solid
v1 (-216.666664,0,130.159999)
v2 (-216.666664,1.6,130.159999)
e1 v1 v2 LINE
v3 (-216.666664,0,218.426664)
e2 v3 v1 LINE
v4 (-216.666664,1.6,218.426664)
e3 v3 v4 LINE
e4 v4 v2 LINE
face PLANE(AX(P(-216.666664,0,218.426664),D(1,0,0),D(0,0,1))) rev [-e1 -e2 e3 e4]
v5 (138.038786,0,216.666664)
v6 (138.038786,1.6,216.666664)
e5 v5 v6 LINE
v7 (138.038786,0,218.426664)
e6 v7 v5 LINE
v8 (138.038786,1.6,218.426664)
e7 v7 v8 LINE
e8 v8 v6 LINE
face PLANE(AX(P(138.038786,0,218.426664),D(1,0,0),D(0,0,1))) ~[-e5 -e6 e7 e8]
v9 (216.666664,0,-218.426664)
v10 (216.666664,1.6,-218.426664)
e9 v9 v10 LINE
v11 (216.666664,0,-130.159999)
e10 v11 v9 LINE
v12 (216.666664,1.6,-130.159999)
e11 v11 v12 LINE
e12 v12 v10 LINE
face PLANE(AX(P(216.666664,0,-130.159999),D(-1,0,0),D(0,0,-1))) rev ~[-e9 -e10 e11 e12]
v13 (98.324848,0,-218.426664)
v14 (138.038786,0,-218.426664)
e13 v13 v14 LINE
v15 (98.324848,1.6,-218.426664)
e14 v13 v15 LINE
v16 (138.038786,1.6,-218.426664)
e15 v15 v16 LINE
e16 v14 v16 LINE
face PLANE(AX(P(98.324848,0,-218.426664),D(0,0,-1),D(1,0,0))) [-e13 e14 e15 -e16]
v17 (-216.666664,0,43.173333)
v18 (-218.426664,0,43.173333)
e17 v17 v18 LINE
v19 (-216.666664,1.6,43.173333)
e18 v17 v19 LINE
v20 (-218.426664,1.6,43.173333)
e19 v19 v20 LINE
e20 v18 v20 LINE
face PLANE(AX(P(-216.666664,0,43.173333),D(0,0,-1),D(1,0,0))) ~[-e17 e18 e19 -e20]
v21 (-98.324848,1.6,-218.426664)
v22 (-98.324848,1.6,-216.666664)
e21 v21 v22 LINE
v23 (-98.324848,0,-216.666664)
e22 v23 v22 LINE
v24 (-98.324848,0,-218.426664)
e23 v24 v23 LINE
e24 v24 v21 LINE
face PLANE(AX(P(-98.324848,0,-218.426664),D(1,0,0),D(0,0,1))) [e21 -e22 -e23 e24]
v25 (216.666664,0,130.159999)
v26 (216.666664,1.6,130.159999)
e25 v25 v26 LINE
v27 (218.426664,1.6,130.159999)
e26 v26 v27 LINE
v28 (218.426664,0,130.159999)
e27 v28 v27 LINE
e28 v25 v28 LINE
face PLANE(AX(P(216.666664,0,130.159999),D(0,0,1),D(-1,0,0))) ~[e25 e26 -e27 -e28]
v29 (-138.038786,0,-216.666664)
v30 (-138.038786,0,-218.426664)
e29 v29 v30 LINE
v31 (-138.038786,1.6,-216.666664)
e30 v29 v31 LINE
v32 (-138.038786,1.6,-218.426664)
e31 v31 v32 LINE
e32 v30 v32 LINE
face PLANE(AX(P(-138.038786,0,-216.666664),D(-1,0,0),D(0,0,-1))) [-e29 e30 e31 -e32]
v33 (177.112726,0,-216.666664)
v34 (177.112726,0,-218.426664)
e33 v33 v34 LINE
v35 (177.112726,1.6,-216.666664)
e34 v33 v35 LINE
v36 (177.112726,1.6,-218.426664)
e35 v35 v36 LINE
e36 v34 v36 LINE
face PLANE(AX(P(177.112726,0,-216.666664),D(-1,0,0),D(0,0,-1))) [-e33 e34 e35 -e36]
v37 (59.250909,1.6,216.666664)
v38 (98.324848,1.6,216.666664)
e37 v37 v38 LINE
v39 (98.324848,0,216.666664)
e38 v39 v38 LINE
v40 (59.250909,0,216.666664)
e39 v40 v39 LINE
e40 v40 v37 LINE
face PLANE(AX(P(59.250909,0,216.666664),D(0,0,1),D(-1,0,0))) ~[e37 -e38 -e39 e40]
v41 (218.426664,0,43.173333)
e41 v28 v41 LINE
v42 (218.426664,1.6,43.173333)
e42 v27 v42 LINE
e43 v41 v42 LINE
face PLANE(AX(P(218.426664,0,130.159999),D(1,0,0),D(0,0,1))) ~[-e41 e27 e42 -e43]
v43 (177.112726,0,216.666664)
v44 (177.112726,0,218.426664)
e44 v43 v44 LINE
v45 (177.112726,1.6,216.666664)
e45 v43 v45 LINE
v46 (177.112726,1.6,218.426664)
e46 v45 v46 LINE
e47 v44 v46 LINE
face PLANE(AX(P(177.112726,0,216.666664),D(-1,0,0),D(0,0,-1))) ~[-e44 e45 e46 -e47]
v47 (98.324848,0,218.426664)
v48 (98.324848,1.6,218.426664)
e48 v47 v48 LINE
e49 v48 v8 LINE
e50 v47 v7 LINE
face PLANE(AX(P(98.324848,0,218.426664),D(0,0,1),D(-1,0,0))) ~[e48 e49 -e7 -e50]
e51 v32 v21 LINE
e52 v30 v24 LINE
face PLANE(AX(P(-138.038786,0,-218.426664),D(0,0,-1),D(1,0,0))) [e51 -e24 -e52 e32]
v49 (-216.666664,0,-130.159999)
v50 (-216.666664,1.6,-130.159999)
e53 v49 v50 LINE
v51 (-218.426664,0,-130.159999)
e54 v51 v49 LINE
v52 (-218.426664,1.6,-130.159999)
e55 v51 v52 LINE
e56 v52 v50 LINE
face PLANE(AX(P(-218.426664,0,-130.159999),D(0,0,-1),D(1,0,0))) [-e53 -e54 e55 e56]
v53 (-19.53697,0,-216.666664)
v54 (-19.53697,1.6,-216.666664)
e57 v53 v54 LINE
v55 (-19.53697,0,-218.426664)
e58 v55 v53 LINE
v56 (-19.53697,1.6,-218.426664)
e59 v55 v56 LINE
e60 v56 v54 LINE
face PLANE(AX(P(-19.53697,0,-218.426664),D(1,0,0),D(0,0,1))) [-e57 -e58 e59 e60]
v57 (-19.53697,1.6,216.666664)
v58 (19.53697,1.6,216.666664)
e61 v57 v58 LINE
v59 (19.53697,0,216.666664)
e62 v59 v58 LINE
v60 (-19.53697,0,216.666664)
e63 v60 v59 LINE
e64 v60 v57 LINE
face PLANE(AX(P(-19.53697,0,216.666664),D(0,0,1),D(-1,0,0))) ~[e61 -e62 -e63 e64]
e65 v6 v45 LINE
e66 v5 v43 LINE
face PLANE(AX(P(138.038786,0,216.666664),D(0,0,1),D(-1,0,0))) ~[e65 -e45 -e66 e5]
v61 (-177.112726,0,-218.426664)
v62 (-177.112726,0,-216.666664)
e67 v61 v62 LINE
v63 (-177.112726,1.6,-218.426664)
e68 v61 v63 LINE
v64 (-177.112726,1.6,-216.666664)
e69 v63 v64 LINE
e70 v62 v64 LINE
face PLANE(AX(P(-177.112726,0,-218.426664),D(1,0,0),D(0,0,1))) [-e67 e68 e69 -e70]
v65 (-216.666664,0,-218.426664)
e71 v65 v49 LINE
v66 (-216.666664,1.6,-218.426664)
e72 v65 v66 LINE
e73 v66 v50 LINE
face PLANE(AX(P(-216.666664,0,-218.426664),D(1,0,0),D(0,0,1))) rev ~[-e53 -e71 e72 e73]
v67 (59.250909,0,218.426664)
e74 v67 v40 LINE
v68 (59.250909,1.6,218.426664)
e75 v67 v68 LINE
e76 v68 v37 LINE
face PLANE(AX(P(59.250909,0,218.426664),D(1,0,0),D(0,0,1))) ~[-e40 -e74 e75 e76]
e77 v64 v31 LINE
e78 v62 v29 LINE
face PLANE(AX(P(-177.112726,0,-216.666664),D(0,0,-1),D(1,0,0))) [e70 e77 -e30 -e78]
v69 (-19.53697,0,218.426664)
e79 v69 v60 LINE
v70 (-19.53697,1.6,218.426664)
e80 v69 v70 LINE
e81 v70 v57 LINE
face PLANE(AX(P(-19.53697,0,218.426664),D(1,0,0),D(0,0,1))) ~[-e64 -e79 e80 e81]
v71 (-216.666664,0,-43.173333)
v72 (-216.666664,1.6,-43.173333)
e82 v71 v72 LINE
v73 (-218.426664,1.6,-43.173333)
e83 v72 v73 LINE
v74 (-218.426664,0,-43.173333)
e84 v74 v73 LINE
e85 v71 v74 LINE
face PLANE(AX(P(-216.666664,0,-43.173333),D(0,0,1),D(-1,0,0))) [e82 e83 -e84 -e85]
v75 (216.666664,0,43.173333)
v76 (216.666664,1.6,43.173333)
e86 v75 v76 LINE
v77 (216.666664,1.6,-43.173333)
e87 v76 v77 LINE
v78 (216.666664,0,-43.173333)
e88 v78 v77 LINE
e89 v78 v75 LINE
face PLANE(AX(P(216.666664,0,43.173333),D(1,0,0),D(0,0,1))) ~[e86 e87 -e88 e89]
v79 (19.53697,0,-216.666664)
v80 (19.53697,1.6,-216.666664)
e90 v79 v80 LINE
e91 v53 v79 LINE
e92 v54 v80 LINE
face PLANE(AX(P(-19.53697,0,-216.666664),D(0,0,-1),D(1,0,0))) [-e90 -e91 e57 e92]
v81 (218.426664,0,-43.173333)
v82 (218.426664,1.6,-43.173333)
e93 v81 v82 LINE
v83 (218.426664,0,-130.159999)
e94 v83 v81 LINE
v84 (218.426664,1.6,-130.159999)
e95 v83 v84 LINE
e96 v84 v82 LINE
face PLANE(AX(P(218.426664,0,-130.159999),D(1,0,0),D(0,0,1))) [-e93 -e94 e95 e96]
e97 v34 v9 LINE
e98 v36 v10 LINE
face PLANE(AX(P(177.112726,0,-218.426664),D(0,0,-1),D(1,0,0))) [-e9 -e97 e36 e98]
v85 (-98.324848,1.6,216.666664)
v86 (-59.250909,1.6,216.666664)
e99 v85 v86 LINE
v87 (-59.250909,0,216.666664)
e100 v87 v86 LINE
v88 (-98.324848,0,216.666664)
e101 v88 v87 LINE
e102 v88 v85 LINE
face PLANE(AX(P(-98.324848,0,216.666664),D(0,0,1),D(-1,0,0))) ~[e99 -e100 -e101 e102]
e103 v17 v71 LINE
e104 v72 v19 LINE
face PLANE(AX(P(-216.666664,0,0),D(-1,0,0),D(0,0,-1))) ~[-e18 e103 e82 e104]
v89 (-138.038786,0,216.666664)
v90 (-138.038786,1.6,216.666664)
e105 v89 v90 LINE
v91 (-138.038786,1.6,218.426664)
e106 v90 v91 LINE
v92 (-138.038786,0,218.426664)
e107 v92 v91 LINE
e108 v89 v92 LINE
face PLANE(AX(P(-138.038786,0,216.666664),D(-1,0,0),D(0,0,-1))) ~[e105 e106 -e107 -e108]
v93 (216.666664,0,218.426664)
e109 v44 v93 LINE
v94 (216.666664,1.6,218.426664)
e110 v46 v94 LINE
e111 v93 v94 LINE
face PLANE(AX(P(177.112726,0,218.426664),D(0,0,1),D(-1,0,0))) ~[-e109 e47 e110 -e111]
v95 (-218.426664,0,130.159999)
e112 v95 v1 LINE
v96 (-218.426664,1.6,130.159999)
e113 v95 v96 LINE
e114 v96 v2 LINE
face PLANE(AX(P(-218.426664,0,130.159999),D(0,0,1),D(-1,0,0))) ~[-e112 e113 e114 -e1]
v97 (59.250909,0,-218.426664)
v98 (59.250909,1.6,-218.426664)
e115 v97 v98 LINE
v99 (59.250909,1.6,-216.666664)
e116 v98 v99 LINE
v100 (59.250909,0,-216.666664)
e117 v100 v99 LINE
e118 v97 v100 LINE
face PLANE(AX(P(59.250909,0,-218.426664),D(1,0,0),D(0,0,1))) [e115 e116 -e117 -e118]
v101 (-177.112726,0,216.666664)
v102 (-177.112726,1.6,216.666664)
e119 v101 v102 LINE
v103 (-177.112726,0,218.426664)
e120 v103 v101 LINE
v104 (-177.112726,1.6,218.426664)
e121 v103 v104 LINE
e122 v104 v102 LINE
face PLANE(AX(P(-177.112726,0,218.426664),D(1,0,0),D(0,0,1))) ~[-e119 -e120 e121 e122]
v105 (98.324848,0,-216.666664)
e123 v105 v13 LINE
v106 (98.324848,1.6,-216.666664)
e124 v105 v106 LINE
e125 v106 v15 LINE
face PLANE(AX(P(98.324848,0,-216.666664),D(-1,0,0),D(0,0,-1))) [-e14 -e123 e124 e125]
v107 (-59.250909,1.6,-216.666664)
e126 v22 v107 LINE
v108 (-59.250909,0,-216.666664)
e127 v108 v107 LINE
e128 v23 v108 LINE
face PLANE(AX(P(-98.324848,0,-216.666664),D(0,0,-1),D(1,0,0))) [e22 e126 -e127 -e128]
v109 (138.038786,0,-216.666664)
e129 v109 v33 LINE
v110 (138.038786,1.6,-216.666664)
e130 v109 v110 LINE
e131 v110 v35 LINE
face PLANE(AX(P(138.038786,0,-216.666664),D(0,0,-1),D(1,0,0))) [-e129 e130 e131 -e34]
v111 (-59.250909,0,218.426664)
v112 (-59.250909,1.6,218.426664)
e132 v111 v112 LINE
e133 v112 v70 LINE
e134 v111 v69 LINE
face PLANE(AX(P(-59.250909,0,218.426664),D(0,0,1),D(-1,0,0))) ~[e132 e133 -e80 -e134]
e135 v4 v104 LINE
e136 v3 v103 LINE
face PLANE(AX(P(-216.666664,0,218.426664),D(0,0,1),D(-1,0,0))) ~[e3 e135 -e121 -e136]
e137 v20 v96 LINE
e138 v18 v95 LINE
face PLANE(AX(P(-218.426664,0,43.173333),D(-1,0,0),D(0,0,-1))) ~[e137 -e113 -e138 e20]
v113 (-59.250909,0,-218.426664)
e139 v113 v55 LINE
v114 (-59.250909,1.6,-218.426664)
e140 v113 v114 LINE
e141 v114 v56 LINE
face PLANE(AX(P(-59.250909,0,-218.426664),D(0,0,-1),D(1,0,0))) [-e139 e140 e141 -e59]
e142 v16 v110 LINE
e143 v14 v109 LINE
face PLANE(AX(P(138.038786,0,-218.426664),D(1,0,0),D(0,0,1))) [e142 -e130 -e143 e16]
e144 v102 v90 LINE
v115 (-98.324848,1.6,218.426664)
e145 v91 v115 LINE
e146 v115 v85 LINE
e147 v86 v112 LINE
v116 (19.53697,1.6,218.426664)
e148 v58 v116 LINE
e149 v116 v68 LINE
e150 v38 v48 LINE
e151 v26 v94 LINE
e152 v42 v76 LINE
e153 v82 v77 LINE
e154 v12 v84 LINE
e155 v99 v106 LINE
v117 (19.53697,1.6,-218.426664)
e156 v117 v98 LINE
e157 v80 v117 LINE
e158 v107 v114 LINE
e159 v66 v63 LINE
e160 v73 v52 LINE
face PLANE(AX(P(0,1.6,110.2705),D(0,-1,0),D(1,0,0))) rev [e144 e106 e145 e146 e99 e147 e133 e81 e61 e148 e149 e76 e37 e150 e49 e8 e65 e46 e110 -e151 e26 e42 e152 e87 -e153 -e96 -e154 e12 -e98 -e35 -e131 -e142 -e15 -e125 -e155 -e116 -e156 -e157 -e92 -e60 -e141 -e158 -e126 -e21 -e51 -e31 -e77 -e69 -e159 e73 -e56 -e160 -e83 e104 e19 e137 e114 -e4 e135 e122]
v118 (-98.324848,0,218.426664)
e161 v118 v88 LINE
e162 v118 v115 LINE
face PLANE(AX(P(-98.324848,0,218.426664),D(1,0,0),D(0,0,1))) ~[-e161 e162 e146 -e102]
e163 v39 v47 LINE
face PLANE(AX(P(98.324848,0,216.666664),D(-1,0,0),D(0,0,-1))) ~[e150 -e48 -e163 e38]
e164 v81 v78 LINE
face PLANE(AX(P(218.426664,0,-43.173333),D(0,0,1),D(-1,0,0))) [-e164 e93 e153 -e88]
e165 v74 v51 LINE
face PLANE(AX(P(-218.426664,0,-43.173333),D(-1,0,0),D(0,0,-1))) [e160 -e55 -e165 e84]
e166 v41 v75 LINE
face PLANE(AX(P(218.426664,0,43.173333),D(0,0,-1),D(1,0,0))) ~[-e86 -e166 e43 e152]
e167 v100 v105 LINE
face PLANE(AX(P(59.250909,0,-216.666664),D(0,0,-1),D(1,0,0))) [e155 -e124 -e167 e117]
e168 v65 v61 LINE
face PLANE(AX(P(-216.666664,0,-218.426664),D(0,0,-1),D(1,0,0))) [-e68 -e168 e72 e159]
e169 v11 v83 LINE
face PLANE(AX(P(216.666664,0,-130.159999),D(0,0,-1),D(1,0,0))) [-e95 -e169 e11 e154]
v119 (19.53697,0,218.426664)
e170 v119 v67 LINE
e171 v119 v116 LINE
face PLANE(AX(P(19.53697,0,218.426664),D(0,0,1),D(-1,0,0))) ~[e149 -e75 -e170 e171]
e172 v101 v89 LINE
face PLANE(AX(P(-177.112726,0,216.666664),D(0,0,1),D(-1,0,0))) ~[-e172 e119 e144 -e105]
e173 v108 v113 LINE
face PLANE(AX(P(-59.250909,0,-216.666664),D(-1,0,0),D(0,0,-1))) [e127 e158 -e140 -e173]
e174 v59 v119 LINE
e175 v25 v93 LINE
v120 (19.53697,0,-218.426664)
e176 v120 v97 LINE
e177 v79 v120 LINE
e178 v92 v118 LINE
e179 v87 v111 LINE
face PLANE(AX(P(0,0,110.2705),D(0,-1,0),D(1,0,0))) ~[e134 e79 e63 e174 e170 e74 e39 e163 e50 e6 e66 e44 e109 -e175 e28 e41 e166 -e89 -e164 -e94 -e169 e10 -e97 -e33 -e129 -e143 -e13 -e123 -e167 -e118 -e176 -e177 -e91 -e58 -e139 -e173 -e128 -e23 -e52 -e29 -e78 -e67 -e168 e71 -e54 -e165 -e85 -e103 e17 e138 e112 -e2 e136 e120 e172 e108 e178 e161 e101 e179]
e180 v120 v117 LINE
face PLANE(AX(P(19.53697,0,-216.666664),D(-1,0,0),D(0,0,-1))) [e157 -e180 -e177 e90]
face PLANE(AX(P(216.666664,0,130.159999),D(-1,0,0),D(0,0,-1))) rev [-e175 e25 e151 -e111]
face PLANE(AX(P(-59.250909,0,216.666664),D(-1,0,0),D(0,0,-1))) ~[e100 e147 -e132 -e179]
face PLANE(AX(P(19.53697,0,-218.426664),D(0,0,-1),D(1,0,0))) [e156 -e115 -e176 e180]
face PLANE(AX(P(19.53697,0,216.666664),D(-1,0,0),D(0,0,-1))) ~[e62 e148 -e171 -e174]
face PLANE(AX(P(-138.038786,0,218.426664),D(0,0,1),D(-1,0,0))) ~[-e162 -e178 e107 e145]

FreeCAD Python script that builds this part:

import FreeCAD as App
import Part
import Sketcher
from FreeCAD import Vector


def add_polygon(sketch, points):
    """Adds a closed chain of lines whose ends are joined by coincident constraints."""
    first, n = sketch.GeometryCount, len(points)
    for a, b in zip(points, points[1:] + points[:1]):
        sketch.addGeometry(Part.LineSegment(App.Vector(*a, 0), App.Vector(*b, 0)), False)
    for i in range(n):
        sketch.addConstraint(Sketcher.Constraint("Coincident", first + i, 2, first + (i + 1) % n, 1))

doc = App.newDocument("Part")
body = doc.addObject("PartDesign::Body", "Body")

# Sketch on XZ plane
sketch1 = body.newObject("Sketcher::SketchObject", "Sketch")
sketch1.AttachmentSupport = (doc.getObject("XZ_Plane"), [""])
sketch1.MapMode = "FlatFace"
add_polygon(sketch1, [(-216.666664, -218.426664), (-216.666664, -130.159999), (-218.426664, -130.159999), (-218.426664, -43.173333), (-216.666664, -43.173333), (-216.666664, 0), (216.666664, 0), (216.666664, -43.173333), (218.426664, -43.173333), (218.426664, -130.159999), (216.666664, -130.159999), (216.666664, -218.426664), (177.112726, -218.426664), (177.112726, -216.666664), (138.038786, -216.666664), (138.038786, -218.426664), (98.324848, -218.426664), (98.324848, -216.666664), (59.250909, -216.666664), (59.250909, -218.426664), (19.53697, -218.426664), (19.53697, -216.666664), (-19.53697, -216.666664), (-19.53697, -218.426664), (-59.250909, -218.426664), (-59.250909, -216.666664), (-98.324848, -216.666664), (-98.324848, -218.426664), (-138.038786, -218.426664), (-138.038786, -216.666664), (-177.112726, -216.666664), (-177.112726, -218.426664)])  # lines 0-31
sketch1.addConstraint(Sketcher.Constraint("Vertical", 0))
sketch1.addConstraint(Sketcher.Constraint("Horizontal", 1))
sketch1.addConstraint(Sketcher.Constraint("Vertical", 2))
sketch1.addConstraint(Sketcher.Constraint("Horizontal", 3))
sketch1.addConstraint(Sketcher.Constraint("Vertical", 4))
sketch1.addConstraint(Sketcher.Constraint("Horizontal", 5))
sketch1.addConstraint(Sketcher.Constraint("Vertical", 6))
sketch1.addConstraint(Sketcher.Constraint("Horizontal", 7))
sketch1.addConstraint(Sketcher.Constraint("Vertical", 8))
sketch1.addConstraint(Sketcher.Constraint("Horizontal", 9))
sketch1.addConstraint(Sketcher.Constraint("Vertical", 10))
sketch1.addConstraint(Sketcher.Constraint("Horizontal", 11))
sketch1.addConstraint(Sketcher.Constraint("Vertical", 12))
sketch1.addConstraint(Sketcher.Constraint("Horizontal", 13))
sketch1.addConstraint(Sketcher.Constraint("Vertical", 14))
sketch1.addConstraint(Sketcher.Constraint("Horizontal", 15))
sketch1.addConstraint(Sketcher.Constraint("Vertical", 16))
sketch1.addConstraint(Sketcher.Constraint("Horizontal", 17))
sketch1.addConstraint(Sketcher.Constraint("Vertical", 18))
sketch1.addConstraint(Sketcher.Constraint("Horizontal", 19))
sketch1.addConstraint(Sketcher.Constraint("Vertical", 20))
sketch1.addConstraint(Sketcher.Constraint("Horizontal", 21))
sketch1.addConstraint(Sketcher.Constraint("Vertical", 22))
sketch1.addConstraint(Sketcher.Constraint("Horizontal", 23))
sketch1.addConstraint(Sketcher.Constraint("Vertical", 24))
sketch1.addConstraint(Sketcher.Constraint("Horizontal", 25))
sketch1.addConstraint(Sketcher.Constraint("Vertical", 26))
sketch1.addConstraint(Sketcher.Constraint("Horizontal", 27))
sketch1.addConstraint(Sketcher.Constraint("Vertical", 28))
sketch1.addConstraint(Sketcher.Constraint("Horizontal", 29))
sketch1.addConstraint(Sketcher.Constraint("Vertical", 30))
sketch1.addConstraint(Sketcher.Constraint("Horizontal", 31))
sketch1.addConstraint(Sketcher.Constraint("Symmetric", 4, 2, 5, 2, -1, 1))
sketch1.addConstraint(Sketcher.Constraint("Symmetric", 2, 2, 7, 2, -2))
sketch1.addConstraint(Sketcher.Constraint("Symmetric", 0, 2, 9, 2, -2))
sketch1.addConstraint(Sketcher.Constraint("Symmetric", 19, 2, 22, 2, -2))
sketch1.addConstraint(Sketcher.Constraint("Symmetric", 17, 2, 24, 2, -2))
sketch1.addConstraint(Sketcher.Constraint("Symmetric", 15, 2, 26, 2, -2))
sketch1.addConstraint(Sketcher.Constraint("Symmetric", 13, 2, 28, 2, -2))
sketch1.addConstraint(Sketcher.Constraint("Symmetric", 11, 2, 30, 2, -2))
sketch1.addConstraint(Sketcher.Constraint("Horizontal", 11, 2, 14, 2))
sketch1.addConstraint(Sketcher.Constraint("Horizontal", 13, 2, 16, 2))
sketch1.addConstraint(Sketcher.Constraint("Horizontal", 15, 2, 18, 2))
sketch1.addConstraint(Sketcher.Constraint("Horizontal", 17, 2, 20, 2))
sketch1.addConstraint(Sketcher.Constraint("Vertical", 0, 2, 3, 2))
sketch1.addConstraint(Sketcher.Constraint("Equal", 13, 17))
sketch1.addConstraint(Sketcher.Constraint("Equal", 15, 19))
sketch1.addConstraint(Sketcher.Constraint("Equal", 17, 21))
sketch1.addConstraint(Sketcher.Constraint("Equal", 9, 12))
sketch1.addConstraint(Sketcher.Constraint("DistanceX", 1, 2, 1, 1, 1.76))
sketch1.addConstraint(Sketcher.Constraint("DistanceY", 0, 2, -1, 1, 130.159999))
sketch1.addConstraint(Sketcher.Constraint("DistanceX", 5, 1, 5, 2, 433.333329))
sketch1.addConstraint(Sketcher.Constraint("DistanceX", 11, 2, 11, 1, 39.553939))
sketch1.addConstraint(Sketcher.Constraint("DistanceX", 13, 2, 13, 1, 39.073939))
sketch1.addConstraint(Sketcher.Constraint("DistanceY", 0, 1, 0, 2, 88.266666))
sketch1.addConstraint(Sketcher.Constraint("DistanceY", 2, 1, 2, 2, 86.986666))
pad1 = body.newObject("PartDesign::Pad", "Pad")
pad1.Profile = sketch1
pad1.Length = 1.6
pad1.Reversed = True
doc.recompute()

mirrored = body.newObject("PartDesign::Mirrored", "Mirrored")
mirrored.Originals = [pad1]
mirrored.MirrorPlane = (doc.getObject("XY_Plane"), [""])
body.Tip = mirrored

doc.recompute()
